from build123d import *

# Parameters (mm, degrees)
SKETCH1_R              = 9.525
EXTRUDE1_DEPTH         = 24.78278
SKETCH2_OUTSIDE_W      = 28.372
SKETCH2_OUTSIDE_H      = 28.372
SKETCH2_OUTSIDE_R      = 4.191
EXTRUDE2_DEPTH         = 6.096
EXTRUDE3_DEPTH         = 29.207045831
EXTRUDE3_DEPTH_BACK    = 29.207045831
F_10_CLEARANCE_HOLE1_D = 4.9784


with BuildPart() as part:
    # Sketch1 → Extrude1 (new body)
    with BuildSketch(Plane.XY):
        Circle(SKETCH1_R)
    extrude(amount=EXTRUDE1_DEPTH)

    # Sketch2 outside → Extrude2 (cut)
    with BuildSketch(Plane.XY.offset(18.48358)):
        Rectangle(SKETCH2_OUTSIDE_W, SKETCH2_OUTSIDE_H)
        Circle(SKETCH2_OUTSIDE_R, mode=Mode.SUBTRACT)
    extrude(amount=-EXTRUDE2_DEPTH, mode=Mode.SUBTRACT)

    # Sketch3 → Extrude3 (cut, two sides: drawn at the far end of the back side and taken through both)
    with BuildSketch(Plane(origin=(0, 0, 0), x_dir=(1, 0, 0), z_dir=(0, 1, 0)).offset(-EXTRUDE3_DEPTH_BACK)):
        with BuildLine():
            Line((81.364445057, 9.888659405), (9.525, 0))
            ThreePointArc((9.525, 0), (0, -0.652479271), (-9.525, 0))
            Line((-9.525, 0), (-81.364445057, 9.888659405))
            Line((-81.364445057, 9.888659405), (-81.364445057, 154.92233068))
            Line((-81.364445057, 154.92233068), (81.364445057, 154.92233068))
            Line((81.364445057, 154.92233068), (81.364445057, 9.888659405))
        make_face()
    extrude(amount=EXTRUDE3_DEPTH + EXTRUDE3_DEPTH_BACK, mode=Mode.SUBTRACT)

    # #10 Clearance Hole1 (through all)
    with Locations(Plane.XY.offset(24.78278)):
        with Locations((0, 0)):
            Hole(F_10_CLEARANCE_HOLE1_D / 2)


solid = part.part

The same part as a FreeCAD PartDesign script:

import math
import FreeCAD as App
import Part
import Sketcher
from FreeCAD import Vector
Q = App.Units.Quantity

doc = App.newDocument("Part")
body = doc.addObject("PartDesign::Body", "Body")

sketch1 = doc.addObject("Sketcher::SketchObject", "Sketch")
body.addObject(sketch1)
sketch1.AttachmentSupport = (doc.XY_Plane, [""])
sketch1.MapMode = "FlatFace"
sketch1.addGeometry(Part.Circle(Vector(0, 0, 0), Vector(0, 0, 1), 10), False)
sketch1.addConstraint([
    Sketcher.Constraint("Coincident", 0, 3, -1, 1),
    Sketcher.Constraint("Diameter", 0, Q("0.75 in")),
])
pad1 = doc.addObject("PartDesign::Pad", "Pad")
body.addObject(pad1)
pad1.Profile = sketch1
pad1.Length = Q("0.9757 in")

sketch2 = doc.addObject("Sketcher::SketchObject", "Sketch001")
body.addObject(sketch2)
sketch2.AttachmentSupport = (doc.XY_Plane, [""])
sketch2.MapMode = "FlatFace"
sketch2.AttachmentOffset = App.Placement(Vector(0, 0, 0.7277 * 25.4), App.Rotation())
sketch2.addGeometry([
    Part.LineSegment(Vector(-14.2, 14.2, 0), Vector(-14.2, -14.2, 0)),
    Part.LineSegment(Vector(-14.2, -14.2, 0), Vector(14.2, -14.2, 0)),
    Part.LineSegment(Vector(14.2, -14.2, 0), Vector(14.2, 14.2, 0)),
    Part.LineSegment(Vector(14.2, 14.2, 0), Vector(-14.2, 14.2, 0)),
    Part.Circle(Vector(0, 0, 0), Vector(0, 0, 1), 4.2),
], False)
sketch2.addConstraint([
    Sketcher.Constraint("Coincident", 0, 2, 1, 1),
    Sketcher.Constraint("Coincident", 1, 2, 2, 1),
    Sketcher.Constraint("Coincident", 2, 2, 3, 1),
    Sketcher.Constraint("Coincident", 3, 2, 0, 1),
    Sketcher.Constraint("Vertical", 0),
    Sketcher.Constraint("Horizontal", 1),
    Sketcher.Constraint("Vertical", 2),
    Sketcher.Constraint("Horizontal", 3),
    Sketcher.Constraint("Coincident", 4, 3, -1, 1),
    Sketcher.Constraint("Symmetric", 0, 2, 2, 2, -1, 1),
    Sketcher.Constraint("Equal", 3, 0),
    Sketcher.Constraint("Diameter", 4, Q("0.33 in")),
    Sketcher.Constraint("DistanceX", 1, 1, 1, 2, Q("28.372 mm")),
])
pocket1 = doc.addObject("PartDesign::Pocket", "Pocket")
body.addObject(pocket1)
pocket1.Profile = sketch2
pocket1.Length = Q("0.24 in")

sketch3 = doc.addObject("Sketcher::SketchObject", "Sketch002")
body.addObject(sketch3)
sketch3.AttachmentSupport = (doc.XZ_Plane, [""])
sketch3.MapMode = "FlatFace"
sketch3.addGeometry([
    Part.LineSegment(Vector(10, 0, 0), Vector(81, -10, 0)),
    Part.LineSegment(Vector(81, -10, 0), Vector(81, -155, 0)),
    Part.LineSegment(Vector(81, -155, 0), Vector(-81, -155, 0)),
    Part.LineSegment(Vector(-81, -155, 0), Vector(-81, -10, 0)),
    Part.LineSegment(Vector(-81, -10, 0), Vector(-10, 0, 0)),
    Part.ArcOfCircle(Part.Circle(Vector(0, -69, 0), Vector(0, 0, 1), 70), math.radians(82.16), math.radians(97.84)),
], False)
sketch3.addConstraint([
    Sketcher.Constraint("Coincident", 0, 2, 1, 1),
    Sketcher.Constraint("Coincident", 1, 2, 2, 1),
    Sketcher.Constraint("Coincident", 2, 2, 3, 1),
    Sketcher.Constraint("Coincident", 3, 2, 4, 1),
    Sketcher.Constraint("Tangent", 4, 2, 5, 2),
    Sketcher.Constraint("Tangent", 5, 1, 0, 1),
    Sketcher.Constraint("Vertical", 1),
    Sketcher.Constraint("Horizontal", 2),
    Sketcher.Constraint("Vertical", 3),
    Sketcher.Constraint("Symmetric", 4, 2, 5, 1, -1, 1),
    Sketcher.Constraint("Symmetric", 0, 2, 3, 2, -2),
    Sketcher.Constraint("Radius", 5, Q("2.75 in")),
    Sketcher.Constraint("DistanceX", 4, 2, 5, 1, Q("0.75 in")),
    Sketcher.Constraint("DistanceX", 2, 2, 2, 1, Q("162.72889 mm")),
    Sketcher.Constraint("DistanceY", 1, 2, 1, 1, Q("145.033671 mm")),
])
pocket2 = doc.addObject("PartDesign::Pocket", "Pocket001")
body.addObject(pocket2)
pocket2.Profile = sketch3
pocket2.Type = "ThroughAll"
pocket2.Midplane = True

sketch4 = doc.addObject("Sketcher::SketchObject", "Sketch003")
body.addObject(sketch4)
sketch4.AttachmentSupport = (doc.XY_Plane, [""])
sketch4.MapMode = "FlatFace"
sketch4.AttachmentOffset = App.Placement(Vector(0, 0, 0.9757 * 25.4), App.Rotation())
sketch4.addGeometry(Part.Circle(Vector(0, 0, 0), Vector(0, 0, 1), 2.5), False)
sketch4.addConstraint([
    Sketcher.Constraint("Coincident", 0, 3, -1, 1),
    Sketcher.Constraint("Diameter", 0, Q("0.196 in")),
])
doc.recompute()
hole = doc.addObject("PartDesign::Hole", "Hole")
body.addObject(hole)
hole.Profile = sketch4
hole.ThreadType = "None"
hole.Diameter = Q("0.196 in")
hole.DepthType = "ThroughAll"

doc.recompute()
